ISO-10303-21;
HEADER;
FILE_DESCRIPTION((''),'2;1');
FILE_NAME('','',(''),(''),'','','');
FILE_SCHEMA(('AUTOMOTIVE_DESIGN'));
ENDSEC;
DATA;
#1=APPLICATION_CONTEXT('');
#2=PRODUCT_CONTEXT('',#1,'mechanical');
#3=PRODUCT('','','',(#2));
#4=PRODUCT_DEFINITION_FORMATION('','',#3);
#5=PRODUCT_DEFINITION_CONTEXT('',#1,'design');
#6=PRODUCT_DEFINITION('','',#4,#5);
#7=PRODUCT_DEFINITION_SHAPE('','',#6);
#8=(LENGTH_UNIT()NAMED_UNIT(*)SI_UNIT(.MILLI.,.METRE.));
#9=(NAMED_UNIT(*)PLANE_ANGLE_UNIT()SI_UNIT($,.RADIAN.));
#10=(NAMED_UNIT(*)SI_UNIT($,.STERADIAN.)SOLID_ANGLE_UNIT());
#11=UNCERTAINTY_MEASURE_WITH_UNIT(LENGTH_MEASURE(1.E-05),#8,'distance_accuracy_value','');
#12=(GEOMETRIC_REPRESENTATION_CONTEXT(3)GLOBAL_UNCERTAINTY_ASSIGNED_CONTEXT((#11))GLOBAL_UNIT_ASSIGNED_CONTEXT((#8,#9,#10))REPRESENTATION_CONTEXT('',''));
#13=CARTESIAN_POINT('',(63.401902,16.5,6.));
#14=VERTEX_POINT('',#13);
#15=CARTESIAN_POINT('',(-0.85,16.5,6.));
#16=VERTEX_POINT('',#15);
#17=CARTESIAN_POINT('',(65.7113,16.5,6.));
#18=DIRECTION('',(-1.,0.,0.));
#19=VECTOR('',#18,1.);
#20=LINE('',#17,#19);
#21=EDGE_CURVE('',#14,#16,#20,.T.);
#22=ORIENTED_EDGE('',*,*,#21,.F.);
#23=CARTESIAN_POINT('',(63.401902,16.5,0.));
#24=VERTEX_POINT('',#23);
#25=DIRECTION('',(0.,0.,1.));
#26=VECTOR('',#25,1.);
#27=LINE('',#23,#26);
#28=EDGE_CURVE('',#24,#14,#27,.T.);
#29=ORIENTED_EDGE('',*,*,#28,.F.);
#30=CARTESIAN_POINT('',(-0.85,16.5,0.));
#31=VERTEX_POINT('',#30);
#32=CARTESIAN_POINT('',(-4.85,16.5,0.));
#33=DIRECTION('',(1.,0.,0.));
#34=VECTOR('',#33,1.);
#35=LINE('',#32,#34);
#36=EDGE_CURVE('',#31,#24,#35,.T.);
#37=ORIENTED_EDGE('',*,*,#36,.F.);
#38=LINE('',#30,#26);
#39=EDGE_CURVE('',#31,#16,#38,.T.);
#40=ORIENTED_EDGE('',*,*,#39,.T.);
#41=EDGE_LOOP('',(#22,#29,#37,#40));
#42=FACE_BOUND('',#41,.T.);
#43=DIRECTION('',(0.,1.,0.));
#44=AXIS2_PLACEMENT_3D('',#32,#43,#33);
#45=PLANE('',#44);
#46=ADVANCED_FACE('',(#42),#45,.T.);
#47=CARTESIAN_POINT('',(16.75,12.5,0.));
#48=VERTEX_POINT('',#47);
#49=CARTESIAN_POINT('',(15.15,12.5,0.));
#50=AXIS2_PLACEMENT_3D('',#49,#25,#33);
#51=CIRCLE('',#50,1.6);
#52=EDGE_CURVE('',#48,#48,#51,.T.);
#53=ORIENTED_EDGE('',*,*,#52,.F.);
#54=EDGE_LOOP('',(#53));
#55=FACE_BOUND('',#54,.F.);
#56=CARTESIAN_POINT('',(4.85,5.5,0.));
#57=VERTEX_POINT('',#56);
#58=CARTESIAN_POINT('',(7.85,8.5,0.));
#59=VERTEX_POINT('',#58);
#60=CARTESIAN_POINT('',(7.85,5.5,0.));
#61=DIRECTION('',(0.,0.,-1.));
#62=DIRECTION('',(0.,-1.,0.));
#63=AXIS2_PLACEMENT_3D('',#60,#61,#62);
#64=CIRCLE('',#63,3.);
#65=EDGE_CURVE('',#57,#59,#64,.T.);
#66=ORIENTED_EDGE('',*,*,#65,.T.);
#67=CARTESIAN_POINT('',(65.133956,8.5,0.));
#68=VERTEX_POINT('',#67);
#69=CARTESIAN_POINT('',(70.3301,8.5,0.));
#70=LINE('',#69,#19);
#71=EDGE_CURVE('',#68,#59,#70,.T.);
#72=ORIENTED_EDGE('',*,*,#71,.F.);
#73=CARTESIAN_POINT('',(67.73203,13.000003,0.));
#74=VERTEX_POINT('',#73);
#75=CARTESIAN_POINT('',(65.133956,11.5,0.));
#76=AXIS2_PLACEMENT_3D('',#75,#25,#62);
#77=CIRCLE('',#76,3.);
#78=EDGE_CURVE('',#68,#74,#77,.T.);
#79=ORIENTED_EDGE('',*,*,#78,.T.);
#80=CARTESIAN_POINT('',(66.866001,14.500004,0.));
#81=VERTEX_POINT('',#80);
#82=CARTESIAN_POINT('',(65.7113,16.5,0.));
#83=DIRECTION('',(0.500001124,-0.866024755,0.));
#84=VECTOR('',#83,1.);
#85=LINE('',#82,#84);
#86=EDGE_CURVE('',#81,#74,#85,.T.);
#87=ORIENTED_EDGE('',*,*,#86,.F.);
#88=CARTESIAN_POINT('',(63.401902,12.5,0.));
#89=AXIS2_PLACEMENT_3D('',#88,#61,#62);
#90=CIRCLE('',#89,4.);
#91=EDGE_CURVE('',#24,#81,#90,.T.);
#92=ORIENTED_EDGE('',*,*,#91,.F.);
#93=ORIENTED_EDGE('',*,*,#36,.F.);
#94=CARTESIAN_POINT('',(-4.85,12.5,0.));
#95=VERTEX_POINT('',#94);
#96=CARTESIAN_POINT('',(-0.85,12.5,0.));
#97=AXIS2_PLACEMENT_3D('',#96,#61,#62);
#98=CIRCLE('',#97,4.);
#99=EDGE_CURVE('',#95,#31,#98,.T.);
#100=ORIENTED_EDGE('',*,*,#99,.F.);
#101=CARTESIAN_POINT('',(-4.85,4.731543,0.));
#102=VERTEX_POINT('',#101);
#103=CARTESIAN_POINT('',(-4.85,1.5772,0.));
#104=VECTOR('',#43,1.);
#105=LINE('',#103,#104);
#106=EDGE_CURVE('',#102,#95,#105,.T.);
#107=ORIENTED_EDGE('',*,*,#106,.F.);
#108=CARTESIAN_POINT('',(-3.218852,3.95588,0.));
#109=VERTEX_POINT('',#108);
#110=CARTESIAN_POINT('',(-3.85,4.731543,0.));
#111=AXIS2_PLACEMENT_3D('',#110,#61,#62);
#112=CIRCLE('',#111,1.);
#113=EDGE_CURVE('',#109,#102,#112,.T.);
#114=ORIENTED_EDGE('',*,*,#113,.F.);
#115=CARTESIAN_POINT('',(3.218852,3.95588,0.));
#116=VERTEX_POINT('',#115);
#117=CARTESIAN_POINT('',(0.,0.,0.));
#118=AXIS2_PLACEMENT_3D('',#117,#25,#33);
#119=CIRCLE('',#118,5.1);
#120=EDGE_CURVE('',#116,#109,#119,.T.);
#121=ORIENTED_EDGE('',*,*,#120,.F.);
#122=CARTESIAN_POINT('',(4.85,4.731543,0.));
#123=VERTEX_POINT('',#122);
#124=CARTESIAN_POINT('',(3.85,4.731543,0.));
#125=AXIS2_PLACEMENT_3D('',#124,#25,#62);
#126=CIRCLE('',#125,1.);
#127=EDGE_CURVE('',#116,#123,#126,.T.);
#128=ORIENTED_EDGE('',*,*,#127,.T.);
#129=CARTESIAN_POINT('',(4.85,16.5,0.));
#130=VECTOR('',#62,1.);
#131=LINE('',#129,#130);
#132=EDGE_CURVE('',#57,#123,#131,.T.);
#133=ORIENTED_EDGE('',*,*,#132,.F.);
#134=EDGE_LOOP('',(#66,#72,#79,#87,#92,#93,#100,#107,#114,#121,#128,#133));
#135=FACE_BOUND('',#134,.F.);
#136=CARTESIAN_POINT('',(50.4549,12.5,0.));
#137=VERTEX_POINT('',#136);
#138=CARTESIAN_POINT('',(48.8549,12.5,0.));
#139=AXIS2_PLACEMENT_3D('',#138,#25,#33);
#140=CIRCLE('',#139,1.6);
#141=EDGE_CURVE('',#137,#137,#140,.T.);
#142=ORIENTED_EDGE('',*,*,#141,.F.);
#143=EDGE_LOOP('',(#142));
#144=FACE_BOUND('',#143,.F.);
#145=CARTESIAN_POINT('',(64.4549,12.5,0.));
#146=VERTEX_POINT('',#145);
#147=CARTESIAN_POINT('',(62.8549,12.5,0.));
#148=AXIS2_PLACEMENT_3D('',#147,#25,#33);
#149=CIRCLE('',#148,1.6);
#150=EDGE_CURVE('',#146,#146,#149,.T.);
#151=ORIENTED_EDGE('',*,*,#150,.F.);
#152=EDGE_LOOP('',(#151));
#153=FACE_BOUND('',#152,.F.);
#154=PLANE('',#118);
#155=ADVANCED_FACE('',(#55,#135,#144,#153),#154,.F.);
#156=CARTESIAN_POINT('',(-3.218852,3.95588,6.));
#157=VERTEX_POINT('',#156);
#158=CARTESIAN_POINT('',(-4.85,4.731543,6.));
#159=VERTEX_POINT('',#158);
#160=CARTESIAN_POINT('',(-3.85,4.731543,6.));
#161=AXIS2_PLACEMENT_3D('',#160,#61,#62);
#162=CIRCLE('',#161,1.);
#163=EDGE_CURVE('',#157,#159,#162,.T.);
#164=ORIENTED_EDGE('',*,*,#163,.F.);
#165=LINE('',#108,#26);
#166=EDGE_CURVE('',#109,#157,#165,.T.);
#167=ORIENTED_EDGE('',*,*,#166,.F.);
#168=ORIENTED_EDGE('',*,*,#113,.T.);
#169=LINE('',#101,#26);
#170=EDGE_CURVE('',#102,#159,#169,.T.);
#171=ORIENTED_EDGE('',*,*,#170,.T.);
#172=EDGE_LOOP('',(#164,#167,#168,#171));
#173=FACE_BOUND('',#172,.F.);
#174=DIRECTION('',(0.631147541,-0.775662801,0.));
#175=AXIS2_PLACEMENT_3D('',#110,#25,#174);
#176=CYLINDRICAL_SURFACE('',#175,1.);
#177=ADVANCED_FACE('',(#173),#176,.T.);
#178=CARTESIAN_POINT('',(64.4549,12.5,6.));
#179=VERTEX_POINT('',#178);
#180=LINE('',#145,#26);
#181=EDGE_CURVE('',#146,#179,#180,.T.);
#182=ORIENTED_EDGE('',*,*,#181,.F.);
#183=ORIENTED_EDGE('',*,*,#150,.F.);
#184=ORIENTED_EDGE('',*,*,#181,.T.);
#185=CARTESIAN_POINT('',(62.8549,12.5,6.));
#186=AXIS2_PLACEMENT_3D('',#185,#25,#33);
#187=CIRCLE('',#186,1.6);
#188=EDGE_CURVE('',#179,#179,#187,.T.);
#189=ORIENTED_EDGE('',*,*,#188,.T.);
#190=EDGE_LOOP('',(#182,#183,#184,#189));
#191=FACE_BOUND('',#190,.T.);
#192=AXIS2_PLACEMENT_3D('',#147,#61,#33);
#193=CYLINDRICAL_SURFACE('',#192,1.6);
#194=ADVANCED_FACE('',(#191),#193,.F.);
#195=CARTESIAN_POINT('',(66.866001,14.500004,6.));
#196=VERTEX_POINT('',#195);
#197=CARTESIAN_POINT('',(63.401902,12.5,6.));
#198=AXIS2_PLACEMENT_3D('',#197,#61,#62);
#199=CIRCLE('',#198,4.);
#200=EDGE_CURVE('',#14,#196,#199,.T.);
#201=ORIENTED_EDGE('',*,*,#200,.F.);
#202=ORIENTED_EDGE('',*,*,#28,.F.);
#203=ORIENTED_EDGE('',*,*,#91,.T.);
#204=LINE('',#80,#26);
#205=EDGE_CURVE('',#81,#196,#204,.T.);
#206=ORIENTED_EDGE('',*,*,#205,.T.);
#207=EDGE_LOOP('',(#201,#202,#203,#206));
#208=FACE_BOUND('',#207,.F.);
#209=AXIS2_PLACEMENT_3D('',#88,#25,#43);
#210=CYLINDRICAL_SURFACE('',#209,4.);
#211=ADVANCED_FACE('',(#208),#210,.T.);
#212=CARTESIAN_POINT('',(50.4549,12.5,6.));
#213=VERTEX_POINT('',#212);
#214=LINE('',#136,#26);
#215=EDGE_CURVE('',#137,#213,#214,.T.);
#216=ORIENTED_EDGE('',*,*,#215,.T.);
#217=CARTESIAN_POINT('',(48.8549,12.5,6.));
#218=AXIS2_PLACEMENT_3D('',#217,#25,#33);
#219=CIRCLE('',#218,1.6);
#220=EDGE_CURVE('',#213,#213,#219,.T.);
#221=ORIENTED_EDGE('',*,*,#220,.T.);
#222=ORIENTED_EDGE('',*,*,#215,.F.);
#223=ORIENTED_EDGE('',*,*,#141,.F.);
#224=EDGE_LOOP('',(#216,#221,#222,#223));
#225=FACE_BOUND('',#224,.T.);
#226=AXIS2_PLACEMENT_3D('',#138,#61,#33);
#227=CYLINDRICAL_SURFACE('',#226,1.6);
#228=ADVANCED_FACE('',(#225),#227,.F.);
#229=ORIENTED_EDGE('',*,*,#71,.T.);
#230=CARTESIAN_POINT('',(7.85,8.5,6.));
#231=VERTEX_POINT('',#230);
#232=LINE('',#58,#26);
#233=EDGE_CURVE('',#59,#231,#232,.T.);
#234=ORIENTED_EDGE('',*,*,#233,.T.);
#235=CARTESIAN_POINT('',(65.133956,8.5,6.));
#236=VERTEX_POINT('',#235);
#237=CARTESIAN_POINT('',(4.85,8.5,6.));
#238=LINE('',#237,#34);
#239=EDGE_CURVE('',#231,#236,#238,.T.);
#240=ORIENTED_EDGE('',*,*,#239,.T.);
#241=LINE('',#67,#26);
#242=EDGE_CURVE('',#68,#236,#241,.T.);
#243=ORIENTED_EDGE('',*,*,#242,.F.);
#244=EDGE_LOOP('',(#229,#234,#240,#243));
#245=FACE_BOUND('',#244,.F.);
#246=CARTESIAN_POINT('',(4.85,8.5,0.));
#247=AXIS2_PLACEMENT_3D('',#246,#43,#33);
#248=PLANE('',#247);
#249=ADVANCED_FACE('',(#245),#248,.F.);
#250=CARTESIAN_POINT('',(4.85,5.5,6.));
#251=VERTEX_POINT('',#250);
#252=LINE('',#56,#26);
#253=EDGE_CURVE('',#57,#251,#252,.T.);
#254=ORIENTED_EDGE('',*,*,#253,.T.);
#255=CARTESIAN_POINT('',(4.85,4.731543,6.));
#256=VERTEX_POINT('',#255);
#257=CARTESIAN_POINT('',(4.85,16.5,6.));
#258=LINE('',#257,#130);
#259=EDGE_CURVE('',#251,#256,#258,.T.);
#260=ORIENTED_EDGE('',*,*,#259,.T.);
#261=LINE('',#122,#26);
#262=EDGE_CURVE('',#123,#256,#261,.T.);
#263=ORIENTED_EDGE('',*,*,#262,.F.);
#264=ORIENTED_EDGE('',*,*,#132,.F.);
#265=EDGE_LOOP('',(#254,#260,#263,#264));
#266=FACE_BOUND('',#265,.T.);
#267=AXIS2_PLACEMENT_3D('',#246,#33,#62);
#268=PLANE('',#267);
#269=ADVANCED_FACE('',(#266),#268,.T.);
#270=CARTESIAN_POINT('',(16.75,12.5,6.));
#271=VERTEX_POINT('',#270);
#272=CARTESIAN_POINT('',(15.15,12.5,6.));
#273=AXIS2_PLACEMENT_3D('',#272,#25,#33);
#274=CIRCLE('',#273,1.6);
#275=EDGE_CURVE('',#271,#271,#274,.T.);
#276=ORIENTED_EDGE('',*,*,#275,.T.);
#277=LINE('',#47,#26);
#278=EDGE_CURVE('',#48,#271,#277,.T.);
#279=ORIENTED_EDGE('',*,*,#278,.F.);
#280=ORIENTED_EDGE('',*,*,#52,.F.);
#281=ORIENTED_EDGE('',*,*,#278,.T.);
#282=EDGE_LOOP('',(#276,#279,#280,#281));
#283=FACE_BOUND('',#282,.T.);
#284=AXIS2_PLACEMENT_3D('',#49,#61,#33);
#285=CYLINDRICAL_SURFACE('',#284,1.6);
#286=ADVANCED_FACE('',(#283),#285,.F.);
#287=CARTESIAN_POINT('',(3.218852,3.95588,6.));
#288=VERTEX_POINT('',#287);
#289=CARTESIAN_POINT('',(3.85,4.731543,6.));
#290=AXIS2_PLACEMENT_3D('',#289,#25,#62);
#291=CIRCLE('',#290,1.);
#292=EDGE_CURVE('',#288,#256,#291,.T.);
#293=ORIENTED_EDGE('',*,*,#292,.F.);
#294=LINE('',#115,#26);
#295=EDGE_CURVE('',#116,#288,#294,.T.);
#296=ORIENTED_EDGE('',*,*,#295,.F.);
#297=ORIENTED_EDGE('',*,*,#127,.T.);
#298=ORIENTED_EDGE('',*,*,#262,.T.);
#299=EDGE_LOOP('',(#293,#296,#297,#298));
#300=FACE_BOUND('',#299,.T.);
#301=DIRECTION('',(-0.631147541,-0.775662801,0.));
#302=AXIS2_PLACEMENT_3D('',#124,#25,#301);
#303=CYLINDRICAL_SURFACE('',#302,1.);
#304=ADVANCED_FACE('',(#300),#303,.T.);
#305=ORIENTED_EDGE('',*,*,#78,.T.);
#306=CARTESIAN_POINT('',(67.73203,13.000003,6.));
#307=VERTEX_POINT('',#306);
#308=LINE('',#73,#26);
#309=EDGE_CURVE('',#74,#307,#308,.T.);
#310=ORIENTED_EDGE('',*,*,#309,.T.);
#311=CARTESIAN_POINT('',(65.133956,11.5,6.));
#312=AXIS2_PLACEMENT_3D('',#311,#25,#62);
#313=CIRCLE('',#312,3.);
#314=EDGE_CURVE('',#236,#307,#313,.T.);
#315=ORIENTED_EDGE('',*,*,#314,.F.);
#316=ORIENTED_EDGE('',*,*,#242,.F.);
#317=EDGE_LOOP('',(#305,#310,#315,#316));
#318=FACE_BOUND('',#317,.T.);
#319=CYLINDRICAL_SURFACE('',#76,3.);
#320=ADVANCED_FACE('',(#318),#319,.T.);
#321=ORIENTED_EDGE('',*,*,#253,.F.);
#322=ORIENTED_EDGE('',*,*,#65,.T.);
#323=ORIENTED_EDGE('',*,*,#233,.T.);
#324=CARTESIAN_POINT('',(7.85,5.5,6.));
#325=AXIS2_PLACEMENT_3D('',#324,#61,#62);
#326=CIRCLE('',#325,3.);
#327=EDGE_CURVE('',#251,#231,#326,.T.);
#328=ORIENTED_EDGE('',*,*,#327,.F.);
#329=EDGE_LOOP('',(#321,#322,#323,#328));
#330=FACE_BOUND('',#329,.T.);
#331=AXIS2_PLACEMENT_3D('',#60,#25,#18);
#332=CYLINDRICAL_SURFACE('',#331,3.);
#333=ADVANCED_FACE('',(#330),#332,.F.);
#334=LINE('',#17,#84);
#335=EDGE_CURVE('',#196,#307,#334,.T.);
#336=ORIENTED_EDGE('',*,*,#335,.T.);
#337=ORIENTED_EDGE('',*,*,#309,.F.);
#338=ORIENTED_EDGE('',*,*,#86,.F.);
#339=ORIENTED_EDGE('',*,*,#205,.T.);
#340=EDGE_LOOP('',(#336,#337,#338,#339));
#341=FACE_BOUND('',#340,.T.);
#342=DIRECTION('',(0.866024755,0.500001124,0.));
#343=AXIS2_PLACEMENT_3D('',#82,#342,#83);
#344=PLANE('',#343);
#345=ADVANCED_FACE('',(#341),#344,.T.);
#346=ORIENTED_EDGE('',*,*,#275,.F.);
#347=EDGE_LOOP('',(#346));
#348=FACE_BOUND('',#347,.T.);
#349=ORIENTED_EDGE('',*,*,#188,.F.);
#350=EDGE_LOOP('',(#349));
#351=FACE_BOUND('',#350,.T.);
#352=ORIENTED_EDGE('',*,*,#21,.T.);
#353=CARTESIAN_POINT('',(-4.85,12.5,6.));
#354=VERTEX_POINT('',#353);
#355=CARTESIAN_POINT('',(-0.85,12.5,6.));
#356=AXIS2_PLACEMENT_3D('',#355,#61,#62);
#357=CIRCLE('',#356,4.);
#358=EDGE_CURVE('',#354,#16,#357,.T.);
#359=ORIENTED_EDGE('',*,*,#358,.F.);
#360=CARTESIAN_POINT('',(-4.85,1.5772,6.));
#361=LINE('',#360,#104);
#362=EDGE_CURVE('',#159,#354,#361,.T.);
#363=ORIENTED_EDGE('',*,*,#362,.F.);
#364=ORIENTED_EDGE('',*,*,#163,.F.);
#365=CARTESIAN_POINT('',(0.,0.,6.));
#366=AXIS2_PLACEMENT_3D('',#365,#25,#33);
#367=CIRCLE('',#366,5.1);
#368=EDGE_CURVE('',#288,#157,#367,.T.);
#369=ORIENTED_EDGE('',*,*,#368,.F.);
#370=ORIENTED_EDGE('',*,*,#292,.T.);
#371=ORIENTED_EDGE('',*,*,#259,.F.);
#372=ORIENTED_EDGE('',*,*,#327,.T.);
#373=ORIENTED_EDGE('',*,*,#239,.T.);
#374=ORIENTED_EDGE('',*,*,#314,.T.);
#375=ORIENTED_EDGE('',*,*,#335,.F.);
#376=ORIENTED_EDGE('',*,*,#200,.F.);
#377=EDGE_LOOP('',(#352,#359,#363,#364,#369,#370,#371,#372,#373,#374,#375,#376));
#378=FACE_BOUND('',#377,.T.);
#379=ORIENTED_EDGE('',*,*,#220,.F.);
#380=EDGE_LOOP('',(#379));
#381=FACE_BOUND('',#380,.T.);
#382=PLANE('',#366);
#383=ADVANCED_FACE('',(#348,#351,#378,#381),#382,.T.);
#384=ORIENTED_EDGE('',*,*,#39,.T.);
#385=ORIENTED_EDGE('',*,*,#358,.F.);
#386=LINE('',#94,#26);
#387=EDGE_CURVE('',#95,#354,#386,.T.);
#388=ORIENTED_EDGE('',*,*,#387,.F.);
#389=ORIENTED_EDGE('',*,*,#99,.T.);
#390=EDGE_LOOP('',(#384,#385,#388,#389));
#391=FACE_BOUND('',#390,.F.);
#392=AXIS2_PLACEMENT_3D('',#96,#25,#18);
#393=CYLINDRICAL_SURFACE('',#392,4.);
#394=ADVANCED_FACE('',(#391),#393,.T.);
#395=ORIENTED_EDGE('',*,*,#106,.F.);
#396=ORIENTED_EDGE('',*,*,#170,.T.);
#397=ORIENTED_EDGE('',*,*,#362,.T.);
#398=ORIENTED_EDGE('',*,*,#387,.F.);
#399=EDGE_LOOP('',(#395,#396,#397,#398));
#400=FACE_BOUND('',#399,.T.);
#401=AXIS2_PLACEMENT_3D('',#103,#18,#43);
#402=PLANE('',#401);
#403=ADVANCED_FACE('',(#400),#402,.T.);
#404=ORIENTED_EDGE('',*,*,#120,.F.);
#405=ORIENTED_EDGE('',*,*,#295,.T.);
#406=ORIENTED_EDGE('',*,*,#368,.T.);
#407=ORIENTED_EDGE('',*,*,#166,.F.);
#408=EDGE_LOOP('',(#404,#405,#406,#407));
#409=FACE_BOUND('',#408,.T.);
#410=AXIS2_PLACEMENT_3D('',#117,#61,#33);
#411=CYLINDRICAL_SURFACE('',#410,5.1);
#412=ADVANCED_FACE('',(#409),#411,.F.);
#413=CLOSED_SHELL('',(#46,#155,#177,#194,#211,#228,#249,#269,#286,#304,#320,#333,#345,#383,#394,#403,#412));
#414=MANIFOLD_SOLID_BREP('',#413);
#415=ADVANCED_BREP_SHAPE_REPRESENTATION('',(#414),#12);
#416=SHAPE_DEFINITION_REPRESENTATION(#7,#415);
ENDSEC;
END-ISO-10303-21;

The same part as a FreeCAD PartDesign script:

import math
import FreeCAD as App
import Part
import Sketcher
Q = App.Units.Quantity


def edges_at(feature, points):
    """Names of the edges that pass closest to the given points."""
    edges = feature.Shape.Edges
    near = lambda p: min(range(len(edges)), key=lambda i: edges[i].distToShape(Part.Vertex(*p))[0])
    return sorted({f"Edge{near(p) + 1}" for p in points})

doc = App.newDocument("Part")
body = doc.addObject("PartDesign::Body", "Body")

sketch1 = doc.addObject("Sketcher::SketchObject", "Sketch")
body.addObject(sketch1)
sketch1.AttachmentSupport = (doc.XY_Plane, [""])
sketch1.MapMode = "FlatFace"
sketch1.addGeometry(Part.ArcOfCircle(Part.Circle(App.Vector(0, 0, 0), App.Vector(0, 0, 1), 5.1), math.radians(18), math.radians(162)), False)
sketch1.addGeometry(Part.LineSegment(App.Vector(4.8, 1.6, 0), App.Vector(4.8, 8.5, 0)), False)
sketch1.addGeometry(Part.LineSegment(App.Vector(4.8, 8.5, 0), App.Vector(70.3, 8.5, 0)), False)
sketch1.addGeometry(Part.LineSegment(App.Vector(70.3, 8.5, 0), App.Vector(65.7, 16.5, 0)), False)
sketch1.addGeometry(Part.LineSegment(App.Vector(65.7, 16.5, 0), App.Vector(-4.8, 16.5, 0)), False)
sketch1.addGeometry(Part.LineSegment(App.Vector(-4.8, 16.5, 0), App.Vector(-4.8, 1.6, 0)), False)
sketch1.addGeometry(Part.Circle(App.Vector(15.2, 12.5, 0), App.Vector(0, 0, 1), 1.6), False)
sketch1.addGeometry(Part.Circle(App.Vector(62.9, 12.5, 0), App.Vector(0, 0, 1), 1.6), False)
sketch1.addGeometry(Part.Circle(App.Vector(48.9, 12.5, 0), App.Vector(0, 0, 1), 1.6), False)
sketch1.addConstraint(Sketcher.Constraint("Coincident", 0, 1, 1, 1))
sketch1.addConstraint(Sketcher.Constraint("Coincident", 1, 2, 2, 1))
sketch1.addConstraint(Sketcher.Constraint("Coincident", 2, 2, 3, 1))
sketch1.addConstraint(Sketcher.Constraint("Coincident", 3, 2, 4, 1))
sketch1.addConstraint(Sketcher.Constraint("Coincident", 4, 2, 5, 1))
sketch1.addConstraint(Sketcher.Constraint("Coincident", 5, 2, 0, 2))
sketch1.addConstraint(Sketcher.Constraint("Vertical", 1))
sketch1.addConstraint(Sketcher.Constraint("Horizontal", 2))
sketch1.addConstraint(Sketcher.Constraint("Horizontal", 4))
sketch1.addConstraint(Sketcher.Constraint("Vertical", 5))
sketch1.addConstraint(Sketcher.Constraint("Coincident", 0, 3, -1, 1))
sketch1.addConstraint(Sketcher.Constraint("Equal", 6, 7))
sketch1.addConstraint(Sketcher.Constraint("Equal", 7, 8))
sketch1.addConstraint(Sketcher.Constraint("Horizontal", 6, 3, 7, 3))
sketch1.addConstraint(Sketcher.Constraint("Horizontal", 7, 3, 8, 3))
sketch1.addConstraint(Sketcher.Constraint("Horizontal", 0, 1, 5, 2))
sketch1.addConstraint(Sketcher.Constraint("Diameter", 6, 3.2))
sketch1.addConstraint(Sketcher.Constraint("Radius", 0, 5.1))
sketch1.addConstraint(Sketcher.Constraint("DistanceX", 8, 3, 7, 3, 14.0))
sketch1.addConstraint(Sketcher.Constraint("DistanceY", 2, 2, 3, 2, 8.0))
sketch1.addConstraint(Sketcher.Constraint("DistanceX", 4, 2, 6, 3, 20.0))
sketch1.addConstraint(Sketcher.Constraint("DistanceY", -1, 1, 1, 2, 8.5))
sketch1.addConstraint(Sketcher.Constraint("Angle", 3, Q("120 deg")))
sketch1.addConstraint(Sketcher.Constraint("DistanceY", 1, 2, 6, 3, 4.0))
sketch1.addConstraint(Sketcher.Constraint("DistanceX", 2, 1, 2, 2, 65.48))
sketch1.addConstraint(Sketcher.Constraint("DistanceX", 0, 1, 6, 3, 10.3))
sketch1.addConstraint(Sketcher.Constraint("DistanceX", -1, 1, 7, 3, 62.855))
pad1 = doc.addObject("PartDesign::Pad", "Pad")
body.addObject(pad1)
pad1.Profile = sketch1
pad1.Length = 6
doc.recompute()

fillet = doc.addObject("PartDesign::Fillet", "Fillet")
body.addObject(fillet)
fillet.Base = (pad1, edges_at(pad1, [(4.85, 8.5, 3), (70.33, 8.5, 3)]))
fillet.Radius = 3
doc.recompute()

fillet2 = doc.addObject("PartDesign::Fillet", "Fillet001")
body.addObject(fillet2)
fillet2.Base = (fillet, edges_at(fillet, [(-4.85, 16.5, 3), (65.711, 16.5, 3)]))
fillet2.Radius = 4
doc.recompute()

fillet3 = doc.addObject("PartDesign::Fillet", "Fillet002")
body.addObject(fillet3)
fillet3.Base = (fillet2, edges_at(fillet2, [(4.85, 1.577, 3), (-4.85, 1.577, 3)]))
fillet3.Radius = 1

doc.recompute()
